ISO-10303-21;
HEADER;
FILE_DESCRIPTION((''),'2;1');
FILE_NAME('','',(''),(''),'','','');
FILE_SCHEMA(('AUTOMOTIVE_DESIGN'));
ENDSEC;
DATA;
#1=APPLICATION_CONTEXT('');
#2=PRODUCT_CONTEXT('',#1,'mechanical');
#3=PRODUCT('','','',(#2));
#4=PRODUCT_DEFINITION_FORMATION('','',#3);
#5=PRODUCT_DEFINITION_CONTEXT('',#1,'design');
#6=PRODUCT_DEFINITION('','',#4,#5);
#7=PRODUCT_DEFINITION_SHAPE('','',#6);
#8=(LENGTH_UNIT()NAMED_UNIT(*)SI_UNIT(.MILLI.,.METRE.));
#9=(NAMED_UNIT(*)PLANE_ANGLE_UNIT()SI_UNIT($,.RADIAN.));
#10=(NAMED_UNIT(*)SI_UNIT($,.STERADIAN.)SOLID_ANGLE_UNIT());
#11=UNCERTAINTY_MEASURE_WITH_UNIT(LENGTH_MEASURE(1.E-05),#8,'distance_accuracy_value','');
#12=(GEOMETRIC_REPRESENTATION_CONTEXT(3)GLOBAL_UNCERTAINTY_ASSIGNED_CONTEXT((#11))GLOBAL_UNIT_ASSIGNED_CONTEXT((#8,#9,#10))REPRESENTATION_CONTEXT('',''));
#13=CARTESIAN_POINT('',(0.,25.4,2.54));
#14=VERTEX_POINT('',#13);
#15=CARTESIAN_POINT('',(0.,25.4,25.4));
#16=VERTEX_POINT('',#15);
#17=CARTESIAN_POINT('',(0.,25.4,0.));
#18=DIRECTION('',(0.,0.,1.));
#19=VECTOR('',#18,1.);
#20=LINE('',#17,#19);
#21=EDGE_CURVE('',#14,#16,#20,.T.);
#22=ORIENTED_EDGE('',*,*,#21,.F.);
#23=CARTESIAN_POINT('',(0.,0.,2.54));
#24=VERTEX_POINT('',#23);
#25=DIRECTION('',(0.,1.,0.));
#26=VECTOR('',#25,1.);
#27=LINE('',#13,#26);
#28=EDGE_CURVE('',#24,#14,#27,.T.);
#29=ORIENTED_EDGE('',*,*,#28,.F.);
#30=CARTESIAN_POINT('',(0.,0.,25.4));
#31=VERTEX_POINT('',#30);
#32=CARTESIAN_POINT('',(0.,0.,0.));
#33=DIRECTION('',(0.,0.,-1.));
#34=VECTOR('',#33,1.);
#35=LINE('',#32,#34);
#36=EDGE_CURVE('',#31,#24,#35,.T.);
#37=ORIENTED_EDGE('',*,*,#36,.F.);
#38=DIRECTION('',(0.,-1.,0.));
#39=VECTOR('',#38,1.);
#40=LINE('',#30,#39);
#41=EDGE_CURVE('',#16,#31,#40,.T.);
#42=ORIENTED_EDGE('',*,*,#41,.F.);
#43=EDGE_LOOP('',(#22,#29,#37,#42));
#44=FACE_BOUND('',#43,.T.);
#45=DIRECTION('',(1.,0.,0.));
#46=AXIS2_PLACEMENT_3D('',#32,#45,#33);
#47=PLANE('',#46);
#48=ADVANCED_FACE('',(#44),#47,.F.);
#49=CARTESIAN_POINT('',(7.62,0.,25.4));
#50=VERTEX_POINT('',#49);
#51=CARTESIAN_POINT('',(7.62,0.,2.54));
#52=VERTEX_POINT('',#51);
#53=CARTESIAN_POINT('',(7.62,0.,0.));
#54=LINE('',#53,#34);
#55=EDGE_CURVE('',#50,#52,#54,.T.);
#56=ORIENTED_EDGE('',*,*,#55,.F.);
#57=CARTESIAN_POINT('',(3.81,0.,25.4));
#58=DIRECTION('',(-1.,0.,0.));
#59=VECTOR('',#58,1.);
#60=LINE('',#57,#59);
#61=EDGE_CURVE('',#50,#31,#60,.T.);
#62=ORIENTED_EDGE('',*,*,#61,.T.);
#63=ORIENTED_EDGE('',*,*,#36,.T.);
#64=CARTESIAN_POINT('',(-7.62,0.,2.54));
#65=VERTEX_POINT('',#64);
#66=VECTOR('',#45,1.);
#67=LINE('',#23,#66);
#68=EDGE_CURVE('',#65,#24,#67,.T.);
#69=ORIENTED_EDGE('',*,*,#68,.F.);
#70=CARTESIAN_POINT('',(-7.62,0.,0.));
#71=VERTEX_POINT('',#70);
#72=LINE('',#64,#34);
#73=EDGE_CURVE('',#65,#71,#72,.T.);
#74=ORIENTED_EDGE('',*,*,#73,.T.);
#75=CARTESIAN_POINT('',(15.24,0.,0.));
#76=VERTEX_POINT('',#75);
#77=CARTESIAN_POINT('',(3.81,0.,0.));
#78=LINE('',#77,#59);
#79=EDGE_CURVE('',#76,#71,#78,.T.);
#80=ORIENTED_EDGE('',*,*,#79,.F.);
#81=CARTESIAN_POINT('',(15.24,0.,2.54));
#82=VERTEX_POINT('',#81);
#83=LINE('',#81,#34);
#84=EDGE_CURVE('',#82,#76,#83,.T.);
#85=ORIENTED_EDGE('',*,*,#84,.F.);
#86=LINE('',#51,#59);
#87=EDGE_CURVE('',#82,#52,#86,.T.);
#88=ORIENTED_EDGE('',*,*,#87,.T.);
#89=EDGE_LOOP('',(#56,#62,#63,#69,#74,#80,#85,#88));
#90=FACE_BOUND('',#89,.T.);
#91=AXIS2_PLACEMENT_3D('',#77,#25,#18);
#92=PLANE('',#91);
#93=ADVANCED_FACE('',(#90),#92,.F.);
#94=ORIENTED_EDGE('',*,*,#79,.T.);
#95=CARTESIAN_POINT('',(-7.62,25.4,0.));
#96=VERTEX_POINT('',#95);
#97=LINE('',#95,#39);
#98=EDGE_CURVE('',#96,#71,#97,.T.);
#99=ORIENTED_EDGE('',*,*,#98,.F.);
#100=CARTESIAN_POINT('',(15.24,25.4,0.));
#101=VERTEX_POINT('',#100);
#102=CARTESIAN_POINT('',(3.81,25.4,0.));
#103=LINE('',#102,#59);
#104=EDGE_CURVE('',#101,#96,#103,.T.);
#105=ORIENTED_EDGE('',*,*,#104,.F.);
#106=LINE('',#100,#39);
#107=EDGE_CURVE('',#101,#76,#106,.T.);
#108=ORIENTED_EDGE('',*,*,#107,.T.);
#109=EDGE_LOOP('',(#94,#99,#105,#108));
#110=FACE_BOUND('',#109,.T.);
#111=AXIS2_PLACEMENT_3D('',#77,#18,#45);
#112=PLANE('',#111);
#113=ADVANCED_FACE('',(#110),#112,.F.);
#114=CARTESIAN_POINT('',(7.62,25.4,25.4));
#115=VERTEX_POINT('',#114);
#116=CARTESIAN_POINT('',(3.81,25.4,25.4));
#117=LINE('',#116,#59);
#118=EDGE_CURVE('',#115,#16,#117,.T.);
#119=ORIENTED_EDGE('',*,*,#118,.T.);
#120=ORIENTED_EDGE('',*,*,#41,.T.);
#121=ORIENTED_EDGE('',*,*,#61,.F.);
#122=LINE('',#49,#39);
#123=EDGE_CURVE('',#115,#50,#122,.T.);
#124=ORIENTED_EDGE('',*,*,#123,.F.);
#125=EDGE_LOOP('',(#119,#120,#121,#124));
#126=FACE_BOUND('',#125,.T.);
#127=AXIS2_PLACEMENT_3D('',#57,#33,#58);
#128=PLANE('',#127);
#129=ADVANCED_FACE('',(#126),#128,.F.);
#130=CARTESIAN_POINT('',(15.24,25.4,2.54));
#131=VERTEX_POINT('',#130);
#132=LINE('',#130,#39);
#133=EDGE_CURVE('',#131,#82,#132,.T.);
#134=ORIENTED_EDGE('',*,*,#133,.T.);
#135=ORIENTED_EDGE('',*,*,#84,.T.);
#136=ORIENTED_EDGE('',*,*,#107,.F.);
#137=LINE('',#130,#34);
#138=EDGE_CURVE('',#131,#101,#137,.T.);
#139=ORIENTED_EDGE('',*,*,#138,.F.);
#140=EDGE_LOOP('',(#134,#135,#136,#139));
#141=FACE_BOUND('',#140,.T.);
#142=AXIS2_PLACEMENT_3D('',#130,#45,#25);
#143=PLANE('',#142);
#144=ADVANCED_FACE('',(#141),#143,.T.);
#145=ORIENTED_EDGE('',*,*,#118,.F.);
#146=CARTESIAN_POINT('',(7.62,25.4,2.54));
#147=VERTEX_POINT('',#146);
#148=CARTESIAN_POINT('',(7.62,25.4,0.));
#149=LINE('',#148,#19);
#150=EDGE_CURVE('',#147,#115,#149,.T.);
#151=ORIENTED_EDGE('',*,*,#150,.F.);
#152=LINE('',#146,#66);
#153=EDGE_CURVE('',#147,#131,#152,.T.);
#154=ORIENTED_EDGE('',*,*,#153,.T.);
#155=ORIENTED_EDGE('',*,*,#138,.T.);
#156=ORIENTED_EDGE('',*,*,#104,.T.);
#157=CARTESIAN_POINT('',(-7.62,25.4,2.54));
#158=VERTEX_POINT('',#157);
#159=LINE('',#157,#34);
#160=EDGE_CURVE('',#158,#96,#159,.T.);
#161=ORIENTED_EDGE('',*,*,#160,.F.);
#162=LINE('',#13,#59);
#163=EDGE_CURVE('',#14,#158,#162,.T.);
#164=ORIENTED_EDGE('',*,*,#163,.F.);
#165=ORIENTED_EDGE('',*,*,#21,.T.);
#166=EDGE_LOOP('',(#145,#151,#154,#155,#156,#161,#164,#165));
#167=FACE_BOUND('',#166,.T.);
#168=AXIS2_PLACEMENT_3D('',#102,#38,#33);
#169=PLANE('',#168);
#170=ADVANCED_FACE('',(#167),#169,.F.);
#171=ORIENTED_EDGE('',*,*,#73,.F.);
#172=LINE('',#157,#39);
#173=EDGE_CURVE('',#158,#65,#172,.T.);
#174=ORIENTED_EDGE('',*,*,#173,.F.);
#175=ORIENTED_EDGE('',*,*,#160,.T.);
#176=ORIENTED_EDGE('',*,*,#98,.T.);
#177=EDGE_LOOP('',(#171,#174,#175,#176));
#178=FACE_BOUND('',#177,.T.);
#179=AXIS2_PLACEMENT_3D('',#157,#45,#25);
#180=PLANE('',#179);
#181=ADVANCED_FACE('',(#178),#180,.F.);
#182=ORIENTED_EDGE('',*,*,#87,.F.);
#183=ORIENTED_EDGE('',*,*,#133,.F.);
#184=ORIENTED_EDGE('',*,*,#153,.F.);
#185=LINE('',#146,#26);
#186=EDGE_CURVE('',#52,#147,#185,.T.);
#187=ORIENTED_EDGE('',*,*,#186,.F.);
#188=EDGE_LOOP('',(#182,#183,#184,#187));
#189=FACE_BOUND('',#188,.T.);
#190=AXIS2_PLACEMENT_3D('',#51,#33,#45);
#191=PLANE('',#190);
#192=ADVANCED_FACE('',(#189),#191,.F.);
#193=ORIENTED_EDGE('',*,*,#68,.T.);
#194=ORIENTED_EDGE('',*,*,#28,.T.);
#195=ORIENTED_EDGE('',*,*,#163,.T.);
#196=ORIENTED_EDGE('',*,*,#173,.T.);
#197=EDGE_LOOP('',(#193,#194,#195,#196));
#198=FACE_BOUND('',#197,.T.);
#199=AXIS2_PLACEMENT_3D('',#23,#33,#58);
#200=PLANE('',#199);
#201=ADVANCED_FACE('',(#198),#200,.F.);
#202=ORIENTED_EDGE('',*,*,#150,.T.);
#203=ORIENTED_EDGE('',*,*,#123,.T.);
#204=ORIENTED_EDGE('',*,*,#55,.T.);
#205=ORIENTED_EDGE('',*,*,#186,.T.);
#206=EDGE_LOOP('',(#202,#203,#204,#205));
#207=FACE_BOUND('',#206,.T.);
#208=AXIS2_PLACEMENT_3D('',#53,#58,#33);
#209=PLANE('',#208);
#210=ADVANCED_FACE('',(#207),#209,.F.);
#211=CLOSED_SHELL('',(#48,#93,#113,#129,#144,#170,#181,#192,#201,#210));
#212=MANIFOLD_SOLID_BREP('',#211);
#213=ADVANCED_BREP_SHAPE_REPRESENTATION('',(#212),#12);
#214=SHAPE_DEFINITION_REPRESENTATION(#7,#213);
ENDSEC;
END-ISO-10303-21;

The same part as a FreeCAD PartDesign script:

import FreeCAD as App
import Part
import Sketcher
Q = App.Units.Quantity


def add_polygon(sketch, points):
    """Adds a closed chain of lines whose ends are joined by coincident constraints."""
    first, n = sketch.GeometryCount, len(points)
    for a, b in zip(points, points[1:] + points[:1]):
        sketch.addGeometry(Part.LineSegment(App.Vector(*a, 0), App.Vector(*b, 0)), False)
    for i in range(n):
        sketch.addConstraint(Sketcher.Constraint("Coincident", first + i, 2, first + (i + 1) % n, 1))

doc = App.newDocument("Part")
params = doc.addObject("Spreadsheet::Sheet", "Params")
for row, (alias, value) in enumerate([
    ("sketch1_width", "1 in"),
    ("pad1_length", "0.15 in"),
    ("sketch2_height", "1 in"),
    ("sketch2_width", "0.3 in"),
    ("pad2_length", "0.1 in"),
], start=1):
    params.set(f"A{row}", alias)
    params.set(f"B{row}", "=" + value)
    params.setAlias(f"B{row}", alias)

body = doc.addObject("PartDesign::Body", "Body")

sketch1 = body.newObject("Sketcher::SketchObject", "Sketch")
sketch1.AttachmentSupport = (doc.getObject("YZ_Plane"), [""])
sketch1.MapMode = "FlatFace"
add_polygon(sketch1, [(25, 25), (0, 25), (0, 0), (25, 0)])
sketch1.addConstraint([
    Sketcher.Constraint("Horizontal", 0),
    Sketcher.Constraint("Vertical", 1),
    Sketcher.Constraint("Horizontal", 2),
    Sketcher.Constraint("Vertical", 3),
    Sketcher.Constraint("Coincident", 1, 2, -1, 1),
    Sketcher.Constraint("Equal", 2, 1),
    Sketcher.Constraint("DistanceX", 0, 2, 0, 1, Q("1 in")),
])
sketch1.setExpression("Constraints[10]", "Params.sketch1_width")
pad1 = body.newObject("PartDesign::Pad", "Pad")
pad1.Profile = sketch1
pad1.setExpression("Length", "Params.pad1_length")

sketch2 = body.newObject("Sketcher::SketchObject", "Sketch001")
sketch2.AttachmentSupport = (doc.getObject("XY_Plane"), [""])
sketch2.MapMode = "FlatFace"
add_polygon(sketch2, [(-8, 25), (-8, 0), (0, 0), (0, 25)])
sketch2.addConstraint([
    Sketcher.Constraint("Vertical", 0),
    Sketcher.Constraint("Horizontal", 1),
    Sketcher.Constraint("Vertical", 2),
    Sketcher.Constraint("Horizontal", 3),
    Sketcher.Constraint("Coincident", 1, 2, -1, 1),
    Sketcher.Constraint("DistanceY", 0, 2, 0, 1, Q("1 in")),
    Sketcher.Constraint("DistanceX", 1, 1, 1, 2, Q("0.3 in")),
])
sketch2.setExpression("Constraints[9]", "Params.sketch2_height")
sketch2.setExpression("Constraints[10]", "Params.sketch2_width")
pad2 = body.newObject("PartDesign::Pad", "Pad001")
pad2.Profile = sketch2
pad2.setExpression("Length", "Params.pad2_length")
doc.recompute()

datumplane = body.newObject("PartDesign::Plane", "DatumPlane")
datumplane.AttachmentSupport = (doc.getObject("YZ_Plane"), [""])
datumplane.MapMode = "FlatFace"
datumplane.AttachmentOffset = App.Placement(App.Vector(0, 0, 0.15 * 25.4), App.Rotation())
mirrored = body.newObject("PartDesign::Mirrored", "Mirrored")
mirrored.Originals = [pad1, pad2]
mirrored.MirrorPlane = (datumplane, [""])
body.Tip = mirrored

doc.recompute()
